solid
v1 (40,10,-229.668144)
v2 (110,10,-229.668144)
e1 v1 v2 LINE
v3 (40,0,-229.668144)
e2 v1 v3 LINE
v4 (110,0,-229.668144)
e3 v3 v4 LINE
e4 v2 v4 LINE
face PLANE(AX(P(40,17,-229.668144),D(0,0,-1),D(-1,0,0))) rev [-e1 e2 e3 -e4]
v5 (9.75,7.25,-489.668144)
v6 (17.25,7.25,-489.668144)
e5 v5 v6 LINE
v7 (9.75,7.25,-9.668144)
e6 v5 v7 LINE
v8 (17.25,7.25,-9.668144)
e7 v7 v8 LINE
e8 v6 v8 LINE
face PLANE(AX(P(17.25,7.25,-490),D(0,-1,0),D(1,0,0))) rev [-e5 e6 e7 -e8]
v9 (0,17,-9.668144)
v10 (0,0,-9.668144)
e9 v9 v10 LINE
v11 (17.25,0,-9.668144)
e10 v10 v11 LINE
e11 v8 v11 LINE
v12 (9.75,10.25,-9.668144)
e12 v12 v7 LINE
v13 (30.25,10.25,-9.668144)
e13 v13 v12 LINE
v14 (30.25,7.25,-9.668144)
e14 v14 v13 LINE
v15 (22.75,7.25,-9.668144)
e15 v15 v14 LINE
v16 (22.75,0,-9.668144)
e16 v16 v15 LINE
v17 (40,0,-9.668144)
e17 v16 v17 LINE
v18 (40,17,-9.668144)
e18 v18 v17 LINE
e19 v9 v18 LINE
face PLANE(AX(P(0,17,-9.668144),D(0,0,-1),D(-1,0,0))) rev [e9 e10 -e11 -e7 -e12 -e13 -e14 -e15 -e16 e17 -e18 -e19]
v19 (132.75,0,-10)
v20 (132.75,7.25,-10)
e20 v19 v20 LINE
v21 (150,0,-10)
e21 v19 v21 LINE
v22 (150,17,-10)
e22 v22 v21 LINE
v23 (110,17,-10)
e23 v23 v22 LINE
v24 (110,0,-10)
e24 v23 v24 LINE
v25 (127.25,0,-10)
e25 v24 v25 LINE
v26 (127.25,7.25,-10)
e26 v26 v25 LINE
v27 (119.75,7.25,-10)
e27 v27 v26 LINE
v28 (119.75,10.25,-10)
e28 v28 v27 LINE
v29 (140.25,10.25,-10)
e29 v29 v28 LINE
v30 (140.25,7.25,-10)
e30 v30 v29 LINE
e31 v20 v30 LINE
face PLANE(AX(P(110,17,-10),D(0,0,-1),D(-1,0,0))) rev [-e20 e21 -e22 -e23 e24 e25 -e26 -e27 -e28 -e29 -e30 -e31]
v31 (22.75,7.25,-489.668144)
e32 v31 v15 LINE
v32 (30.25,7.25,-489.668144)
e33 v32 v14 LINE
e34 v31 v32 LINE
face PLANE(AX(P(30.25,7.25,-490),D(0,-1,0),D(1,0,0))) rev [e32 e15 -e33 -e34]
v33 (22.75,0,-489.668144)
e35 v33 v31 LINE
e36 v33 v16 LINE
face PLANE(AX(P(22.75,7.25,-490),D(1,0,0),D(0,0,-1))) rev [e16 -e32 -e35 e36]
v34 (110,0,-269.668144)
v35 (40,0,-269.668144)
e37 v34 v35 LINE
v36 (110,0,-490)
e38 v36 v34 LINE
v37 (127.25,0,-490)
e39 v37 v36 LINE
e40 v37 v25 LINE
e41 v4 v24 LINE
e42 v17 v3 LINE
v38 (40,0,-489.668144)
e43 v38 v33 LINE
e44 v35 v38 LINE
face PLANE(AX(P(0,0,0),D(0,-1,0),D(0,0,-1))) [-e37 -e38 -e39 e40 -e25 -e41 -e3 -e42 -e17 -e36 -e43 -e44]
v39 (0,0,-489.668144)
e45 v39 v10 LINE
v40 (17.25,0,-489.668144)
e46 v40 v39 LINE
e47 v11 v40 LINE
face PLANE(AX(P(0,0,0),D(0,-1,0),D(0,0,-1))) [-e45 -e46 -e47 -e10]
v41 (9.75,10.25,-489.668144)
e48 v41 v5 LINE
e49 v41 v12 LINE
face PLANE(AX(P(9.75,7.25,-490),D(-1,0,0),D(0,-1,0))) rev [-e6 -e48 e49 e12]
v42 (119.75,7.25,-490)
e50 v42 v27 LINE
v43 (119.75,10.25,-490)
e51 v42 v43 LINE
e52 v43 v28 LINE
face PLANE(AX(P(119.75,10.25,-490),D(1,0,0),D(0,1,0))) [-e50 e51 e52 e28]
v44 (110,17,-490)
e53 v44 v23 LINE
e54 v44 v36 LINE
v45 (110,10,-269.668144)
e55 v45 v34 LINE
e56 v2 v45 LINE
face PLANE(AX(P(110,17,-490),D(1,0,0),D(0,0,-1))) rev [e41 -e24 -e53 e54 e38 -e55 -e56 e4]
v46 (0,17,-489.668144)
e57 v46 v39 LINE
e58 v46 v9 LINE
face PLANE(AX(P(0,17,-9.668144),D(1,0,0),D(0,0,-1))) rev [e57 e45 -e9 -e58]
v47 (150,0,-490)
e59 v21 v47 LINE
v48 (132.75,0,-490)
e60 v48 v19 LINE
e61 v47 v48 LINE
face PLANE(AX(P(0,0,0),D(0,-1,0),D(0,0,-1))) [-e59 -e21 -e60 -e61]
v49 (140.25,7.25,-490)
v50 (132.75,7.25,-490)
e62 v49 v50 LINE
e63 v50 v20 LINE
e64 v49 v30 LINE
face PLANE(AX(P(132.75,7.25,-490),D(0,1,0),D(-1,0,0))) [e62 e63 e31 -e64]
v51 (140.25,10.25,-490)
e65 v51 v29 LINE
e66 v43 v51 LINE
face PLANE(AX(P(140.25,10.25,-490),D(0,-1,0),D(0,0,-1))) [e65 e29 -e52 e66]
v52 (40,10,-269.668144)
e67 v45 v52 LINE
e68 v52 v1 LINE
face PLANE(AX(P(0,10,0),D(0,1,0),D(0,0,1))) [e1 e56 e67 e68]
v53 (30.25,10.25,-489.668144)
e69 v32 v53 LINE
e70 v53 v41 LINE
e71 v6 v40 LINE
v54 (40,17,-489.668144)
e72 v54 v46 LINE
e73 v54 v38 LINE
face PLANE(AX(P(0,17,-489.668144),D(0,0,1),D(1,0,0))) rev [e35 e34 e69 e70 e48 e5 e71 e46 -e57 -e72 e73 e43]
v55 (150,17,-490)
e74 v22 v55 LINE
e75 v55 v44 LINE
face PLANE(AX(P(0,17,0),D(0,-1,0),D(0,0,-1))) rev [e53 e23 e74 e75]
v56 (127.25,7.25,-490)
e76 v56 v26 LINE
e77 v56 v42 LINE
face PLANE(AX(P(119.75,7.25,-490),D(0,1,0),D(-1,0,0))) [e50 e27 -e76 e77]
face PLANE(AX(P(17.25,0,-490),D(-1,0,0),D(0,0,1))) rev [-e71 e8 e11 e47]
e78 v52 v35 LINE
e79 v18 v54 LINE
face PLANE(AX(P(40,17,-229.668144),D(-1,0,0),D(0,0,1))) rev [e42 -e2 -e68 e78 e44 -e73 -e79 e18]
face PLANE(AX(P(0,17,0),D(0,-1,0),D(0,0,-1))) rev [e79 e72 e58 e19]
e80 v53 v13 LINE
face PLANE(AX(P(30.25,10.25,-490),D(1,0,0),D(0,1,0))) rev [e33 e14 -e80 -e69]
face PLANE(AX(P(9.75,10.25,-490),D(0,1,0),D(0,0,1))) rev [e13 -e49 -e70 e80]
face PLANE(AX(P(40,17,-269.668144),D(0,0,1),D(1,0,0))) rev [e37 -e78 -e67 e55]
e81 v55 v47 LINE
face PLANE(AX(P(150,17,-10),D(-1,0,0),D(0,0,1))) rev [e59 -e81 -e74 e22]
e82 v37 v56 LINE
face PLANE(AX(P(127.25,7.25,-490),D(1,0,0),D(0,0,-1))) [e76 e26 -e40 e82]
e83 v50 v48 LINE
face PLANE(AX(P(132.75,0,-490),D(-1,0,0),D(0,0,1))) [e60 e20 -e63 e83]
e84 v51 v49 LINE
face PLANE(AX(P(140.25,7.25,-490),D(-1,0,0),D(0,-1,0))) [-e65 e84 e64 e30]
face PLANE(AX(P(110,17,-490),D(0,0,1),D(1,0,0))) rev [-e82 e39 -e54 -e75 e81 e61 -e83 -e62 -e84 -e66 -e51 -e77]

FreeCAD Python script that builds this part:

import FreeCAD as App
import Part
import Sketcher

V = App.Vector
Q = App.Units.Quantity


def add_polygon(sketch, points):
    """Adds a closed chain of lines whose ends are joined by coincident constraints."""
    first, n = sketch.GeometryCount, len(points)
    for a, b in zip(points, points[1:] + points[:1]):
        sketch.addGeometry(Part.LineSegment(App.Vector(*a, 0), App.Vector(*b, 0)), False)
    for i in range(n):
        sketch.addConstraint(Sketcher.Constraint("Coincident", first + i, 2, first + (i + 1) % n, 1))

doc = App.newDocument("Part")
body = doc.addObject("PartDesign::Body", "Body")

sketch1 = doc.addObject("Sketcher::SketchObject", "Sketch")
body.addObject(sketch1)
sketch1.AttachmentSupport = (doc.XZ_Plane, [""])
sketch1.MapMode = "FlatFace"
add_polygon(sketch1, [(40, -269.668144), (40, -489.668144), (0, -489.668144), (0, -9.668144), (40, -9.668144), (40, -229.668144), (110, -229.668144), (110, -10), (150, -10), (150, -490), (110, -490), (110, -269.668144)])
sketch1.addConstraint(Sketcher.Constraint("Vertical", 0))
sketch1.addConstraint(Sketcher.Constraint("Horizontal", 1))
sketch1.addConstraint(Sketcher.Constraint("Vertical", 2))
sketch1.addConstraint(Sketcher.Constraint("Horizontal", 3))
sketch1.addConstraint(Sketcher.Constraint("Vertical", 4))
sketch1.addConstraint(Sketcher.Constraint("Horizontal", 5))
sketch1.addConstraint(Sketcher.Constraint("Vertical", 6))
sketch1.addConstraint(Sketcher.Constraint("Horizontal", 7))
sketch1.addConstraint(Sketcher.Constraint("Vertical", 8))
sketch1.addConstraint(Sketcher.Constraint("Horizontal", 9))
sketch1.addConstraint(Sketcher.Constraint("Vertical", 10))
sketch1.addConstraint(Sketcher.Constraint("Horizontal", 11))
sketch1.addConstraint(Sketcher.Constraint("PointOnObject", 1, 2, -2))
sketch1.addConstraint(Sketcher.Constraint("Vertical", 0, 2, 3, 2))
sketch1.addConstraint(Sketcher.Constraint("Vertical", 6, 2, 9, 2))
sketch1.addConstraint(Sketcher.Constraint("Equal", 3, 7))
sketch1.addConstraint(Sketcher.Constraint("Equal", 0, 4))
sketch1.addConstraint(Sketcher.Constraint("Equal", 2, 8))
sketch1.addConstraint(Sketcher.Constraint("DistanceX", 1, 2, 1, 1, Q("40 mm")))
sketch1.addConstraint(Sketcher.Constraint("DistanceX", 5, 1, 5, 2, Q("70 mm")))
sketch1.addConstraint(Sketcher.Constraint("DistanceY", 0, 2, 0, 1, Q("220 mm")))
sketch1.addConstraint(Sketcher.Constraint("DistanceY", 2, 1, 2, 2, Q("480 mm")))
sketch1.addConstraint(Sketcher.Constraint("DistanceY", 6, 2, -1, 1, Q("10 mm")))
sketch1.addConstraint(Sketcher.Constraint("DistanceY", 6, 1, 6, 2, Q("219.668144 mm")))
pad1 = doc.addObject("PartDesign::Pad", "Pad")
body.addObject(pad1)
pad1.Profile = sketch1
pad1.Length = 17
pad1.Reversed = True

sketch2 = doc.addObject("Sketcher::SketchObject", "Sketch001")
body.addObject(sketch2)
sketch2.AttachmentSupport = (doc.XZ_Plane, [""])
sketch2.MapMode = "FlatFace"
sketch2.AttachmentOffset = App.Placement(V(0, 0, -17), App.Rotation())
add_polygon(sketch2, [(40, -269.668144), (40, -229.668144), (110, -229.668144), (110, -269.668144)])
sketch2.addConstraint(Sketcher.Constraint("Vertical", 0))
sketch2.addConstraint(Sketcher.Constraint("Horizontal", 1))
sketch2.addConstraint(Sketcher.Constraint("Vertical", 2))
sketch2.addConstraint(Sketcher.Constraint("Horizontal", 3))
sketch2.addConstraint(Sketcher.Constraint("DistanceX", 1, 1, 1, 2, Q("70 mm")))
sketch2.addConstraint(Sketcher.Constraint("DistanceY", 0, 1, 0, 2, Q("40 mm")))
sketch2.addConstraint(Sketcher.Constraint("DistanceX", -1, 1, 0, 2, Q("40 mm")))
sketch2.addConstraint(Sketcher.Constraint("DistanceY", 0, 2, -1, 1, Q("229.668144 mm")))
pocket1 = doc.addObject("PartDesign::Pocket", "Pocket")
body.addObject(pocket1)
pocket1.Profile = sketch2
pocket1.Length = 7
pocket1.Reversed = True

sketch3 = doc.addObject("Sketcher::SketchObject", "Sketch002")
body.addObject(sketch3)
sketch3.AttachmentSupport = (doc.XY_Plane, [""])
sketch3.MapMode = "FlatFace"
sketch3.AttachmentOffset = App.Placement(V(0, 0, -9.668144), App.Rotation())
add_polygon(sketch3, [(17.25, 7.25), (17.25, 0), (22.75, 0), (22.75, 7.25), (30.25, 7.25), (30.25, 10.25), (9.75, 10.25), (9.75, 7.25)])
sketch3.addConstraint(Sketcher.Constraint("Vertical", 0))
sketch3.addConstraint(Sketcher.Constraint("Horizontal", 1))
sketch3.addConstraint(Sketcher.Constraint("Vertical", 2))
sketch3.addConstraint(Sketcher.Constraint("Horizontal", 3))
sketch3.addConstraint(Sketcher.Constraint("Vertical", 4))
sketch3.addConstraint(Sketcher.Constraint("Horizontal", 5))
sketch3.addConstraint(Sketcher.Constraint("Vertical", 6))
sketch3.addConstraint(Sketcher.Constraint("Horizontal", 7))
sketch3.addConstraint(Sketcher.Constraint("PointOnObject", 0, 2, -1))
sketch3.addConstraint(Sketcher.Constraint("Horizontal", 3, 2, 6, 2))
sketch3.addConstraint(Sketcher.Constraint("Equal", 3, 7))
sketch3.addConstraint(Sketcher.Constraint("DistanceY", 4, 1, 4, 2, Q("3 mm")))
sketch3.addConstraint(Sketcher.Constraint("DistanceX", 1, 1, 1, 2, Q("5.5 mm")))
sketch3.addConstraint(Sketcher.Constraint("DistanceX", 3, 1, 3, 2, Q("7.5 mm")))
sketch3.addConstraint(Sketcher.Constraint("DistanceY", 0, 2, 0, 1, Q("7.25 mm")))
sketch3.addConstraint(Sketcher.Constraint("DistanceX", -1, 1, 0, 2, Q("17.25 mm")))
pocket2 = doc.addObject("PartDesign::Pocket", "Pocket001")
body.addObject(pocket2)
pocket2.Profile = sketch3
pocket2.Type = "ThroughAll"
doc.recompute()

datumplane = doc.addObject("PartDesign::Plane", "DatumPlane")
body.addObject(datumplane)
datumplane.AttachmentSupport = (doc.YZ_Plane, [""])
datumplane.MapMode = "FlatFace"
datumplane.AttachmentOffset = App.Placement(V(0, 0, 75), App.Rotation())
mirrored = doc.addObject("PartDesign::Mirrored", "Mirrored")
body.addObject(mirrored)
mirrored.Originals = [pocket2]
mirrored.MirrorPlane = (datumplane, [""])
body.Tip = mirrored

doc.recompute()
